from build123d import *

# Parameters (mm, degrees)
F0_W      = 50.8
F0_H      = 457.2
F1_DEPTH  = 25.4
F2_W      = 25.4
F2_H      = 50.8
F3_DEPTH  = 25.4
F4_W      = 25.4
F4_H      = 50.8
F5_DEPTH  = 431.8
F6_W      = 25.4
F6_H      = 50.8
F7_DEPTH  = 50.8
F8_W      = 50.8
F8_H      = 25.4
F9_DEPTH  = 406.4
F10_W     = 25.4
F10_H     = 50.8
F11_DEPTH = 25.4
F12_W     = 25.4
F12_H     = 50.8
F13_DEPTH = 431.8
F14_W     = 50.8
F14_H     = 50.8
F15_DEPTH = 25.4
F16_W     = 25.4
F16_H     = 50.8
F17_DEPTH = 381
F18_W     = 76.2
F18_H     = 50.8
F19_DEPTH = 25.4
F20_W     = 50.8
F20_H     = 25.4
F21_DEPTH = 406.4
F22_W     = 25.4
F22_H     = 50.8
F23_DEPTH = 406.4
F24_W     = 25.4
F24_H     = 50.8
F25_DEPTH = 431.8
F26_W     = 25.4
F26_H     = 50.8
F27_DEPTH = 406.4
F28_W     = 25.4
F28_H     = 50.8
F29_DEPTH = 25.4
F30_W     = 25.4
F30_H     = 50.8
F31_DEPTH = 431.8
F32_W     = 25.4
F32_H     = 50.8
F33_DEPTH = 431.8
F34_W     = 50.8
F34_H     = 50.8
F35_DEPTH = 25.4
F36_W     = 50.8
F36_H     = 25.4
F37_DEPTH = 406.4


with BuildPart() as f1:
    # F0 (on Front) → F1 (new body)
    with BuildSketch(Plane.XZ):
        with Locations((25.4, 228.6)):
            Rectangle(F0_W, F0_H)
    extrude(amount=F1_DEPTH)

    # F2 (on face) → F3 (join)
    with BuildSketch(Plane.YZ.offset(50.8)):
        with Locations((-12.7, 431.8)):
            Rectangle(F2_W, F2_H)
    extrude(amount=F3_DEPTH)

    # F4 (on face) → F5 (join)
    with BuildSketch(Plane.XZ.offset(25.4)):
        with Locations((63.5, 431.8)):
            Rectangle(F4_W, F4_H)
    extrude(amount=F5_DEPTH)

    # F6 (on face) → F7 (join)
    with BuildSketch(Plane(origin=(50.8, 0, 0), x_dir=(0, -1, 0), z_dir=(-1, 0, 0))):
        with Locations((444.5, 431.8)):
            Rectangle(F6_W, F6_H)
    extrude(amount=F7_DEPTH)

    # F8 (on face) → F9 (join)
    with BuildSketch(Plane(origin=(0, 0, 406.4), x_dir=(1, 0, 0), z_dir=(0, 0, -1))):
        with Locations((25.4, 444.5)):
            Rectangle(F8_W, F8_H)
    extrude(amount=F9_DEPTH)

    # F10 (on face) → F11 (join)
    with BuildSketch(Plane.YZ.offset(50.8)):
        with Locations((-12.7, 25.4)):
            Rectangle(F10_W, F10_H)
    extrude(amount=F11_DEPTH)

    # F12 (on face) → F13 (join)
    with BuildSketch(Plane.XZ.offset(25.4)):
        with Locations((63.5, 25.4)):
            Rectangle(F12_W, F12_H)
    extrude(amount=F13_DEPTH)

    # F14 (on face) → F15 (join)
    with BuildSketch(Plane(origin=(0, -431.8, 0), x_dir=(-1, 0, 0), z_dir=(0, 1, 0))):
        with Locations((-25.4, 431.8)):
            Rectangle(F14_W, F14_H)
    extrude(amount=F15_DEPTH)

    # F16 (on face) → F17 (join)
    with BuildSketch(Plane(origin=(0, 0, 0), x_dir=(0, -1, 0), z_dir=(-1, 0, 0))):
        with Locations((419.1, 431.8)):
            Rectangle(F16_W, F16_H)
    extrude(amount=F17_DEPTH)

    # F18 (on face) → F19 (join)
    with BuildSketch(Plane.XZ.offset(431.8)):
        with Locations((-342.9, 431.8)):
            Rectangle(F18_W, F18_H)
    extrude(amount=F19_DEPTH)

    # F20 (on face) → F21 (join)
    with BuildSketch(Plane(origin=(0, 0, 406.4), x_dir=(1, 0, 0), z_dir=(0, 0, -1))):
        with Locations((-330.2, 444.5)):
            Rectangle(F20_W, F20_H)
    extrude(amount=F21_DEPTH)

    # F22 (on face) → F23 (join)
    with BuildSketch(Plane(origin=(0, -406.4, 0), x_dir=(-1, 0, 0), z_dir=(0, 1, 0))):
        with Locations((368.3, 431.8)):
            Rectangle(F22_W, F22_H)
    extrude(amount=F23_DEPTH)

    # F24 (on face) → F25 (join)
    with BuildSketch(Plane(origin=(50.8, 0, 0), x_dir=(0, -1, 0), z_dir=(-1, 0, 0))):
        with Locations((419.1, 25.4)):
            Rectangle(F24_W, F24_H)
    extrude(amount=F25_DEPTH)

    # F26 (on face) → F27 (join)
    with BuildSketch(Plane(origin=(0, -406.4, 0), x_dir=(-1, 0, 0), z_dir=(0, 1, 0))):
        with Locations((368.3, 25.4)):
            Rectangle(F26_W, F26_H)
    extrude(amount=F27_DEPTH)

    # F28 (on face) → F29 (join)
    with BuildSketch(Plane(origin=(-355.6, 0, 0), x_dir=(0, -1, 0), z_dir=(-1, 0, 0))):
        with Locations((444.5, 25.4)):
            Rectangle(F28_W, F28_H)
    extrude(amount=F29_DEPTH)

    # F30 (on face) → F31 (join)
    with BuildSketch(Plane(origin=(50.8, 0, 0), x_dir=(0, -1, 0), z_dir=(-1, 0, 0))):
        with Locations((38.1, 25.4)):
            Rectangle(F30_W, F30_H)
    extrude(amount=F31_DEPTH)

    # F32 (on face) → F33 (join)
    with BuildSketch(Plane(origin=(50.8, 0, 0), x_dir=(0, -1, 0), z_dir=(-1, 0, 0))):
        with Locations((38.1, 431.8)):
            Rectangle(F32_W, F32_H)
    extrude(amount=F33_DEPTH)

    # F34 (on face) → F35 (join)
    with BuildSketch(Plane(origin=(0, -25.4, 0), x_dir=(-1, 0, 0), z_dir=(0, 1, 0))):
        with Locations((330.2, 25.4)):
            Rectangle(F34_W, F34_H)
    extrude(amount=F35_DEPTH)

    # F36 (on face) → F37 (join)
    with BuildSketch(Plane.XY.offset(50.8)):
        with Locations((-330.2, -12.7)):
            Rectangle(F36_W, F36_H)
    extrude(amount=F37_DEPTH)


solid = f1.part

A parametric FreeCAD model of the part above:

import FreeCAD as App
import Part
import Sketcher

V = App.Vector
Q = App.Units.Quantity

doc = App.newDocument("Part")
params = doc.addObject("Spreadsheet::Sheet", "Params")
for row, (alias, value) in enumerate([
    ("sketch1_width", "2 in"),
    ("sketch1_height", "18 in"),
    ("pad1_length", "1 in"),
    ("sketch2_width", "1 in"),
    ("sketch2_height", "2 in"),
    ("pad2_length", "1 in"),
    ("sketch3_width", "1 in"),
    ("sketch3_height", "2 in"),
    ("pad3_length", "17 in"),
    ("sketch4_width", "1 in"),
    ("sketch4_height", "2 in"),
    ("pad4_length", "2 in"),
    ("sketch5_width", "2 in"),
    ("sketch5_height", "1 in"),
    ("pad5_length", "16 in"),
    ("sketch6_width", "1 in"),
    ("sketch6_height", "2 in"),
    ("pad6_length", "1 in"),
    ("sketch7_width", "1 in"),
    ("sketch7_height", "2 in"),
    ("pad7_length", "17 in"),
    ("sketch8_width", "2 in"),
    ("pad8_length", "1 in"),
    ("sketch9_width", "1 in"),
    ("sketch9_height", "2 in"),
    ("pad9_length", "15 in"),
    ("sketch10_width", "3 in"),
    ("sketch10_height", "2 in"),
    ("pad10_length", "1 in"),
    ("sketch11_width", "2 in"),
    ("sketch11_height", "1 in"),
    ("pad11_length", "16 in"),
    ("sketch12_width", "1 in"),
    ("sketch12_height", "2 in"),
    ("pad12_length", "16 in"),
    ("sketch13_width", "1 in"),
    ("sketch13_height", "2 in"),
    ("pad13_length", "17 in"),
    ("sketch14_width", "1 in"),
    ("sketch14_height", "2 in"),
    ("pad14_length", "16 in"),
    ("sketch15_width", "1 in"),
    ("sketch15_height", "2 in"),
    ("pad15_length", "1 in"),
    ("sketch16_width", "1 in"),
    ("sketch16_height", "2 in"),
    ("pad16_length", "17 in"),
    ("sketch17_width", "1 in"),
    ("sketch17_height", "2 in"),
    ("pad17_length", "17 in"),
    ("sketch18_width", "2 in"),
    ("pad18_length", "1 in"),
    ("sketch19_width", "2 in"),
    ("sketch19_height", "1 in"),
    ("pad19_length", "16 in"),
], start=1):
    params.set(f"A{row}", alias)
    params.set(f"B{row}", "=" + value)
    params.setAlias(f"B{row}", alias)

body = doc.addObject("PartDesign::Body", "Body")

sketch1 = body.newObject("Sketcher::SketchObject", "Sketch")
sketch1.AttachmentSupport = (doc.getObject("XZ_Plane"), [""])
sketch1.MapMode = "FlatFace"
sketch1.addGeometry(Part.LineSegment(V(0, 457, 0), V(0, 0, 0)), False)
sketch1.addGeometry(Part.LineSegment(V(0, 0, 0), V(51, 0, 0)), False)
sketch1.addGeometry(Part.LineSegment(V(51, 0, 0), V(51, 457, 0)), False)
sketch1.addGeometry(Part.LineSegment(V(51, 457, 0), V(0, 457, 0)), False)
sketch1.addConstraint(Sketcher.Constraint("Coincident", 0, 2, 1, 1))
sketch1.addConstraint(Sketcher.Constraint("Coincident", 1, 2, 2, 1))
sketch1.addConstraint(Sketcher.Constraint("Coincident", 2, 2, 3, 1))
sketch1.addConstraint(Sketcher.Constraint("Coincident", 3, 2, 0, 1))
sketch1.addConstraint(Sketcher.Constraint("Vertical", 0))
sketch1.addConstraint(Sketcher.Constraint("Horizontal", 1))
sketch1.addConstraint(Sketcher.Constraint("Vertical", 2))
sketch1.addConstraint(Sketcher.Constraint("Horizontal", 3))
sketch1.addConstraint(Sketcher.Constraint("Coincident", 0, 2, -1, 1))
sketch1.addConstraint(Sketcher.Constraint("DistanceX", 1, 1, 1, 2, Q("2 in")))
sketch1.addConstraint(Sketcher.Constraint("DistanceY", 0, 2, 0, 1, Q("18 in")))
sketch1.setExpression("Constraints[9]", "Params.sketch1_width")
sketch1.setExpression("Constraints[10]", "Params.sketch1_height")
pad1 = body.newObject("PartDesign::Pad", "Pad")
pad1.Profile = sketch1
pad1.setExpression("Length", "Params.pad1_length")

sketch2 = body.newObject("Sketcher::SketchObject", "Sketch001")
sketch2.AttachmentSupport = (doc.getObject("YZ_Plane"), [""])
sketch2.MapMode = "FlatFace"
sketch2.AttachmentOffset = App.Placement(V(0, 0, 2 * 25.4), App.Rotation())
sketch2.addGeometry(Part.LineSegment(V(-25, 457, 0), V(-25, 406, 0)), False)
sketch2.addGeometry(Part.LineSegment(V(-25, 406, 0), V(0, 406, 0)), False)
sketch2.addGeometry(Part.LineSegment(V(0, 406, 0), V(0, 457, 0)), False)
sketch2.addGeometry(Part.LineSegment(V(0, 457, 0), V(-25, 457, 0)), False)
sketch2.addConstraint(Sketcher.Constraint("Coincident", 0, 2, 1, 1))
sketch2.addConstraint(Sketcher.Constraint("Coincident", 1, 2, 2, 1))
sketch2.addConstraint(Sketcher.Constraint("Coincident", 2, 2, 3, 1))
sketch2.addConstraint(Sketcher.Constraint("Coincident", 3, 2, 0, 1))
sketch2.addConstraint(Sketcher.Constraint("Vertical", 0))
sketch2.addConstraint(Sketcher.Constraint("Horizontal", 1))
sketch2.addConstraint(Sketcher.Constraint("Vertical", 2))
sketch2.addConstraint(Sketcher.Constraint("Horizontal", 3))
sketch2.addConstraint(Sketcher.Constraint("PointOnObject", 1, 2, -2))
sketch2.addConstraint(Sketcher.Constraint("DistanceX", 1, 1, 1, 2, Q("1 in")))
sketch2.addConstraint(Sketcher.Constraint("DistanceY", 0, 2, 0, 1, Q("2 in")))
sketch2.addConstraint(Sketcher.Constraint("DistanceY", -1, 1, 0, 2, Q("16 in")))
sketch2.setExpression("Constraints[9]", "Params.sketch2_width")
sketch2.setExpression("Constraints[10]", "Params.sketch2_height")
pad2 = body.newObject("PartDesign::Pad", "Pad001")
pad2.Profile = sketch2
pad2.setExpression("Length", "Params.pad2_length")

sketch3 = body.newObject("Sketcher::SketchObject", "Sketch002")
sketch3.AttachmentSupport = (doc.getObject("XZ_Plane"), [""])
sketch3.MapMode = "FlatFace"
sketch3.AttachmentOffset = App.Placement(V(0, 0, 1 * 25.4), App.Rotation())
sketch3.addGeometry(Part.LineSegment(V(51, 457, 0), V(51, 406, 0)), False)
sketch3.addGeometry(Part.LineSegment(V(51, 406, 0), V(76, 406, 0)), False)
sketch3.addGeometry(Part.LineSegment(V(76, 406, 0), V(76, 457, 0)), False)
sketch3.addGeometry(Part.LineSegment(V(76, 457, 0), V(51, 457, 0)), False)
sketch3.addConstraint(Sketcher.Constraint("Coincident", 0, 2, 1, 1))
sketch3.addConstraint(Sketcher.Constraint("Coincident", 1, 2, 2, 1))
sketch3.addConstraint(Sketcher.Constraint("Coincident", 2, 2, 3, 1))
sketch3.addConstraint(Sketcher.Constraint("Coincident", 3, 2, 0, 1))
sketch3.addConstraint(Sketcher.Constraint("Vertical", 0))
sketch3.addConstraint(Sketcher.Constraint("Horizontal", 1))
sketch3.addConstraint(Sketcher.Constraint("Vertical", 2))
sketch3.addConstraint(Sketcher.Constraint("Horizontal", 3))
sketch3.addConstraint(Sketcher.Constraint("DistanceX", 1, 1, 1, 2, Q("1 in")))
sketch3.addConstraint(Sketcher.Constraint("DistanceY", 0, 2, 0, 1, Q("2 in")))
sketch3.addConstraint(Sketcher.Constraint("DistanceX", -1, 1, 0, 2, Q("2 in")))
sketch3.addConstraint(Sketcher.Constraint("DistanceY", -1, 1, 0, 2, Q("16 in")))
sketch3.setExpression("Constraints[8]", "Params.sketch3_width")
sketch3.setExpression("Constraints[9]", "Params.sketch3_height")
pad3 = body.newObject("PartDesign::Pad", "Pad002")
pad3.Profile = sketch3
pad3.setExpression("Length", "Params.pad3_length")

sketch4 = body.newObject("Sketcher::SketchObject", "Sketch003")
sketch4.AttachmentSupport = (doc.getObject("YZ_Plane"), [""])
sketch4.MapMode = "FlatFace"
sketch4.AttachmentOffset = App.Placement(V(0, 0, 2 * 25.4), App.Rotation())
sketch4.addGeometry(Part.LineSegment(V(-432, 457, 0), V(-432, 406, 0)), False)
sketch4.addGeometry(Part.LineSegment(V(-432, 406, 0), V(-457, 406, 0)), False)
sketch4.addGeometry(Part.LineSegment(V(-457, 406, 0), V(-457, 457, 0)), False)
sketch4.addGeometry(Part.LineSegment(V(-457, 457, 0), V(-432, 457, 0)), False)
sketch4.addConstraint(Sketcher.Constraint("Coincident", 0, 2, 1, 1))
sketch4.addConstraint(Sketcher.Constraint("Coincident", 1, 2, 2, 1))
sketch4.addConstraint(Sketcher.Constraint("Coincident", 2, 2, 3, 1))
sketch4.addConstraint(Sketcher.Constraint("Coincident", 3, 2, 0, 1))
sketch4.addConstraint(Sketcher.Constraint("Vertical", 0))
sketch4.addConstraint(Sketcher.Constraint("Horizontal", 1))
sketch4.addConstraint(Sketcher.Constraint("Vertical", 2))
sketch4.addConstraint(Sketcher.Constraint("Horizontal", 3))
sketch4.addConstraint(Sketcher.Constraint("DistanceX", 1, 2, 1, 1, Q("1 in")))
sketch4.addConstraint(Sketcher.Constraint("DistanceY", 0, 2, 0, 1, Q("2 in")))
sketch4.addConstraint(Sketcher.Constraint("DistanceX", 0, 2, -1, 1, Q("17 in")))
sketch4.addConstraint(Sketcher.Constraint("DistanceY", -1, 1, 0, 2, Q("16 in")))
sketch4.setExpression("Constraints[8]", "Params.sketch4_width")
sketch4.setExpression("Constraints[9]", "Params.sketch4_height")
pad4 = body.newObject("PartDesign::Pad", "Pad003")
pad4.Profile = sketch4
pad4.setExpression("Length", "Params.pad4_length")
pad4.Reversed = True

sketch5 = body.newObject("Sketcher::SketchObject", "Sketch004")
sketch5.AttachmentSupport = (doc.getObject("XY_Plane"), [""])
sketch5.MapMode = "FlatFace"
sketch5.AttachmentOffset = App.Placement(V(0, 0, 16 * 25.4), App.Rotation())
sketch5.addGeometry(Part.LineSegment(V(0, -457, 0), V(0, -432, 0)), False)
sketch5.addGeometry(Part.LineSegment(V(0, -432, 0), V(51, -432, 0)), False)
sketch5.addGeometry(Part.LineSegment(V(51, -432, 0), V(51, -457, 0)), False)
sketch5.addGeometry(Part.LineSegment(V(51, -457, 0), V(0, -457, 0)), False)
sketch5.addConstraint(Sketcher.Constraint("Coincident", 0, 2, 1, 1))
sketch5.addConstraint(Sketcher.Constraint("Coincident", 1, 2, 2, 1))
sketch5.addConstraint(Sketcher.Constraint("Coincident", 2, 2, 3, 1))
sketch5.addConstraint(Sketcher.Constraint("Coincident", 3, 2, 0, 1))
sketch5.addConstraint(Sketcher.Constraint("Vertical", 0))
sketch5.addConstraint(Sketcher.Constraint("Horizontal", 1))
sketch5.addConstraint(Sketcher.Constraint("Vertical", 2))
sketch5.addConstraint(Sketcher.Constraint("Horizontal", 3))
sketch5.addConstraint(Sketcher.Constraint("PointOnObject", 0, 2, -2))
sketch5.addConstraint(Sketcher.Constraint("DistanceX", 1, 1, 1, 2, Q("2 in")))
sketch5.addConstraint(Sketcher.Constraint("DistanceY", 0, 1, 0, 2, Q("1 in")))
sketch5.addConstraint(Sketcher.Constraint("DistanceY", 0, 2, -1, 1, Q("17 in")))
sketch5.setExpression("Constraints[9]", "Params.sketch5_width")
sketch5.setExpression("Constraints[10]", "Params.sketch5_height")
pad5 = body.newObject("PartDesign::Pad", "Pad004")
pad5.Profile = sketch5
pad5.setExpression("Length", "Params.pad5_length")
pad5.Reversed = True

sketch6 = body.newObject("Sketcher::SketchObject", "Sketch005")
sketch6.AttachmentSupport = (doc.getObject("YZ_Plane"), [""])
sketch6.MapMode = "FlatFace"
sketch6.AttachmentOffset = App.Placement(V(0, 0, 2 * 25.4), App.Rotation())
sketch6.addGeometry(Part.LineSegment(V(-25, 51, 0), V(-25, 0, 0)), False)
sketch6.addGeometry(Part.LineSegment(V(-25, 0, 0), V(0, 0, 0)), False)
sketch6.addGeometry(Part.LineSegment(V(0, 0, 0), V(0, 51, 0)), False)
sketch6.addGeometry(Part.LineSegment(V(0, 51, 0), V(-25, 51, 0)), False)
sketch6.addConstraint(Sketcher.Constraint("Coincident", 0, 2, 1, 1))
sketch6.addConstraint(Sketcher.Constraint("Coincident", 1, 2, 2, 1))
sketch6.addConstraint(Sketcher.Constraint("Coincident", 2, 2, 3, 1))
sketch6.addConstraint(Sketcher.Constraint("Coincident", 3, 2, 0, 1))
sketch6.addConstraint(Sketcher.Constraint("Vertical", 0))
sketch6.addConstraint(Sketcher.Constraint("Horizontal", 1))
sketch6.addConstraint(Sketcher.Constraint("Vertical", 2))
sketch6.addConstraint(Sketcher.Constraint("Horizontal", 3))
sketch6.addConstraint(Sketcher.Constraint("Coincident", 1, 2, -1, 1))
sketch6.addConstraint(Sketcher.Constraint("DistanceX", 1, 1, 1, 2, Q("1 in")))
sketch6.addConstraint(Sketcher.Constraint("DistanceY", 0, 2, 0, 1, Q("2 in")))
sketch6.setExpression("Constraints[9]", "Params.sketch6_width")
sketch6.setExpression("Constraints[10]", "Params.sketch6_height")
pad6 = body.newObject("PartDesign::Pad", "Pad005")
pad6.Profile = sketch6
pad6.setExpression("Length", "Params.pad6_length")

sketch7 = body.newObject("Sketcher::SketchObject", "Sketch006")
sketch7.AttachmentSupport = (doc.getObject("XZ_Plane"), [""])
sketch7.MapMode = "FlatFace"
sketch7.AttachmentOffset = App.Placement(V(0, 0, 1 * 25.4), App.Rotation())
sketch7.addGeometry(Part.LineSegment(V(51, 51, 0), V(51, 0, 0)), False)
sketch7.addGeometry(Part.LineSegment(V(51, 0, 0), V(76, 0, 0)), False)
sketch7.addGeometry(Part.LineSegment(V(76, 0, 0), V(76, 51, 0)), False)
sketch7.addGeometry(Part.LineSegment(V(76, 51, 0), V(51, 51, 0)), False)
sketch7.addConstraint(Sketcher.Constraint("Coincident", 0, 2, 1, 1))
sketch7.addConstraint(Sketcher.Constraint("Coincident", 1, 2, 2, 1))
sketch7.addConstraint(Sketcher.Constraint("Coincident", 2, 2, 3, 1))
sketch7.addConstraint(Sketcher.Constraint("Coincident", 3, 2, 0, 1))
sketch7.addConstraint(Sketcher.Constraint("Vertical", 0))
sketch7.addConstraint(Sketcher.Constraint("Horizontal", 1))
sketch7.addConstraint(Sketcher.Constraint("Vertical", 2))
sketch7.addConstraint(Sketcher.Constraint("Horizontal", 3))
sketch7.addConstraint(Sketcher.Constraint("PointOnObject", 0, 2, -1))
sketch7.addConstraint(Sketcher.Constraint("DistanceX", 1, 1, 1, 2, Q("1 in")))
sketch7.addConstraint(Sketcher.Constraint("DistanceY", 0, 2, 0, 1, Q("2 in")))
sketch7.addConstraint(Sketcher.Constraint("DistanceX", -1, 1, 0, 2, Q("2 in")))
sketch7.setExpression("Constraints[9]", "Params.sketch7_width")
sketch7.setExpression("Constraints[10]", "Params.sketch7_height")
pad7 = body.newObject("PartDesign::Pad", "Pad006")
pad7.Profile = sketch7
pad7.setExpression("Length", "Params.pad7_length")

sketch8 = body.newObject("Sketcher::SketchObject", "Sketch007")
sketch8.AttachmentSupport = (doc.getObject("XZ_Plane"), [""])
sketch8.MapMode = "FlatFace"
sketch8.AttachmentOffset = App.Placement(V(0, 0, 17 * 25.4), App.Rotation())
sketch8.addGeometry(Part.LineSegment(V(51, 457, 0), V(51, 406, 0)), False)
sketch8.addGeometry(Part.LineSegment(V(51, 406, 0), V(0, 406, 0)), False)
sketch8.addGeometry(Part.LineSegment(V(0, 406, 0), V(0, 457, 0)), False)
sketch8.addGeometry(Part.LineSegment(V(0, 457, 0), V(51, 457, 0)), False)
sketch8.addConstraint(Sketcher.Constraint("Coincident", 0, 2, 1, 1))
sketch8.addConstraint(Sketcher.Constraint("Coincident", 1, 2, 2, 1))
sketch8.addConstraint(Sketcher.Constraint("Coincident", 2, 2, 3, 1))
sketch8.addConstraint(Sketcher.Constraint("Coincident", 3, 2, 0, 1))
sketch8.addConstraint(Sketcher.Constraint("Vertical", 0))
sketch8.addConstraint(Sketcher.Constraint("Horizontal", 1))
sketch8.addConstraint(Sketcher.Constraint("Vertical", 2))
sketch8.addConstraint(Sketcher.Constraint("Horizontal", 3))
sketch8.addConstraint(Sketcher.Constraint("PointOnObject", 1, 2, -2))
sketch8.addConstraint(Sketcher.Constraint("Equal", 3, 0))
sketch8.addConstraint(Sketcher.Constraint("DistanceX", 1, 2, 1, 1, Q("2 in")))
sketch8.addConstraint(Sketcher.Constraint("DistanceY", -1, 1, 0, 2, Q("16 in")))
sketch8.setExpression("Constraints[10]", "Params.sketch8_width")
pad8 = body.newObject("PartDesign::Pad", "Pad007")
pad8.Profile = sketch8
pad8.setExpression("Length", "Params.pad8_length")
pad8.Reversed = True

sketch9 = body.newObject("Sketcher::SketchObject", "Sketch008")
sketch9.AttachmentSupport = (doc.getObject("YZ_Plane"), [""])
sketch9.MapMode = "FlatFace"
sketch9.addGeometry(Part.LineSegment(V(-406, 457, 0), V(-406, 406, 0)), False)
sketch9.addGeometry(Part.LineSegment(V(-406, 406, 0), V(-432, 406, 0)), False)
sketch9.addGeometry(Part.LineSegment(V(-432, 406, 0), V(-432, 457, 0)), False)
sketch9.addGeometry(Part.LineSegment(V(-432, 457, 0), V(-406, 457, 0)), False)
sketch9.addConstraint(Sketcher.Constraint("Coincident", 0, 2, 1, 1))
sketch9.addConstraint(Sketcher.Constraint("Coincident", 1, 2, 2, 1))
sketch9.addConstraint(Sketcher.Constraint("Coincident", 2, 2, 3, 1))
sketch9.addConstraint(Sketcher.Constraint("Coincident", 3, 2, 0, 1))
sketch9.addConstraint(Sketcher.Constraint("Vertical", 0))
sketch9.addConstraint(Sketcher.Constraint("Horizontal", 1))
sketch9.addConstraint(Sketcher.Constraint("Vertical", 2))
sketch9.addConstraint(Sketcher.Constraint("Horizontal", 3))
sketch9.addConstraint(Sketcher.Constraint("DistanceX", 1, 2, 1, 1, Q("1 in")))
sketch9.addConstraint(Sketcher.Constraint("DistanceY", 0, 2, 0, 1, Q("2 in")))
sketch9.addConstraint(Sketcher.Constraint("DistanceX", 0, 2, -1, 1, Q("16 in")))
sketch9.addConstraint(Sketcher.Constraint("DistanceY", -1, 1, 0, 2, Q("16 in")))
sketch9.setExpression("Constraints[8]", "Params.sketch9_width")
sketch9.setExpression("Constraints[9]", "Params.sketch9_height")
pad9 = body.newObject("PartDesign::Pad", "Pad008")
pad9.Profile = sketch9
pad9.setExpression("Length", "Params.pad9_length")
pad9.Reversed = True

sketch10 = body.newObject("Sketcher::SketchObject", "Sketch009")
sketch10.AttachmentSupport = (doc.getObject("XZ_Plane"), [""])
sketch10.MapMode = "FlatFace"
sketch10.AttachmentOffset = App.Placement(V(0, 0, 17 * 25.4), App.Rotation())
sketch10.addGeometry(Part.LineSegment(V(-381, 457, 0), V(-381, 406, 0)), False)
sketch10.addGeometry(Part.LineSegment(V(-381, 406, 0), V(-305, 406, 0)), False)
sketch10.addGeometry(Part.LineSegment(V(-305, 406, 0), V(-305, 457, 0)), False)
sketch10.addGeometry(Part.LineSegment(V(-305, 457, 0), V(-381, 457, 0)), False)
sketch10.addConstraint(Sketcher.Constraint("Coincident", 0, 2, 1, 1))
sketch10.addConstraint(Sketcher.Constraint("Coincident", 1, 2, 2, 1))
sketch10.addConstraint(Sketcher.Constraint("Coincident", 2, 2, 3, 1))
sketch10.addConstraint(Sketcher.Constraint("Coincident", 3, 2, 0, 1))
sketch10.addConstraint(Sketcher.Constraint("Vertical", 0))
sketch10.addConstraint(Sketcher.Constraint("Horizontal", 1))
sketch10.addConstraint(Sketcher.Constraint("Vertical", 2))
sketch10.addConstraint(Sketcher.Constraint("Horizontal", 3))
sketch10.addConstraint(Sketcher.Constraint("DistanceX", 1, 1, 1, 2, Q("3 in")))
sketch10.addConstraint(Sketcher.Constraint("DistanceY", 0, 2, 0, 1, Q("2 in")))
sketch10.addConstraint(Sketcher.Constraint("DistanceX", 0, 2, -1, 1, Q("15 in")))
sketch10.addConstraint(Sketcher.Constraint("DistanceY", -1, 1, 0, 2, Q("16 in")))
sketch10.setExpression("Constraints[8]", "Params.sketch10_width")
sketch10.setExpression("Constraints[9]", "Params.sketch10_height")
pad10 = body.newObject("PartDesign::Pad", "Pad009")
pad10.Profile = sketch10
pad10.setExpression("Length", "Params.pad10_length")

sketch11 = body.newObject("Sketcher::SketchObject", "Sketch010")
sketch11.AttachmentSupport = (doc.getObject("XY_Plane"), [""])
sketch11.MapMode = "FlatFace"
sketch11.AttachmentOffset = App.Placement(V(0, 0, 16 * 25.4), App.Rotation())
sketch11.addGeometry(Part.LineSegment(V(-356, -457, 0), V(-356, -432, 0)), False)
sketch11.addGeometry(Part.LineSegment(V(-356, -432, 0), V(-305, -432, 0)), False)
sketch11.addGeometry(Part.LineSegment(V(-305, -432, 0), V(-305, -457, 0)), False)
sketch11.addGeometry(Part.LineSegment(V(-305, -457, 0), V(-356, -457, 0)), False)
sketch11.addConstraint(Sketcher.Constraint("Coincident", 0, 2, 1, 1))
sketch11.addConstraint(Sketcher.Constraint("Coincident", 1, 2, 2, 1))
sketch11.addConstraint(Sketcher.Constraint("Coincident", 2, 2, 3, 1))
sketch11.addConstraint(Sketcher.Constraint("Coincident", 3, 2, 0, 1))
sketch11.addConstraint(Sketcher.Constraint("Vertical", 0))
sketch11.addConstraint(Sketcher.Constraint("Horizontal", 1))
sketch11.addConstraint(Sketcher.Constraint("Vertical", 2))
sketch11.addConstraint(Sketcher.Constraint("Horizontal", 3))
sketch11.addConstraint(Sketcher.Constraint("DistanceX", 1, 1, 1, 2, Q("2 in")))
sketch11.addConstraint(Sketcher.Constraint("DistanceY", 0, 1, 0, 2, Q("1 in")))
sketch11.addConstraint(Sketcher.Constraint("DistanceX", 0, 2, -1, 1, Q("14 in")))
sketch11.addConstraint(Sketcher.Constraint("DistanceY", 0, 2, -1, 1, Q("17 in")))
sketch11.setExpression("Constraints[8]", "Params.sketch11_width")
sketch11.setExpression("Constraints[9]", "Params.sketch11_height")
pad11 = body.newObject("PartDesign::Pad", "Pad010")
pad11.Profile = sketch11
pad11.setExpression("Length", "Params.pad11_length")
pad11.Reversed = True

sketch12 = body.newObject("Sketcher::SketchObject", "Sketch011")
sketch12.AttachmentSupport = (doc.getObject("XZ_Plane"), [""])
sketch12.MapMode = "FlatFace"
sketch12.AttachmentOffset = App.Placement(V(0, 0, 16 * 25.4), App.Rotation())
sketch12.addGeometry(Part.LineSegment(V(-356, 457, 0), V(-356, 406, 0)), False)
sketch12.addGeometry(Part.LineSegment(V(-356, 406, 0), V(-381, 406, 0)), False)
sketch12.addGeometry(Part.LineSegment(V(-381, 406, 0), V(-381, 457, 0)), False)
sketch12.addGeometry(Part.LineSegment(V(-381, 457, 0), V(-356, 457, 0)), False)
sketch12.addConstraint(Sketcher.Constraint("Coincident", 0, 2, 1, 1))
sketch12.addConstraint(Sketcher.Constraint("Coincident", 1, 2, 2, 1))
sketch12.addConstraint(Sketcher.Constraint("Coincident", 2, 2, 3, 1))
sketch12.addConstraint(Sketcher.Constraint("Coincident", 3, 2, 0, 1))
sketch12.addConstraint(Sketcher.Constraint("Vertical", 0))
sketch12.addConstraint(Sketcher.Constraint("Horizontal", 1))
sketch12.addConstraint(Sketcher.Constraint("Vertical", 2))
sketch12.addConstraint(Sketcher.Constraint("Horizontal", 3))
sketch12.addConstraint(Sketcher.Constraint("DistanceX", 1, 2, 1, 1, Q("1 in")))
sketch12.addConstraint(Sketcher.Constraint("DistanceY", 0, 2, 0, 1, Q("2 in")))
sketch12.addConstraint(Sketcher.Constraint("DistanceX", 0, 2, -1, 1, Q("14 in")))
sketch12.addConstraint(Sketcher.Constraint("DistanceY", -1, 1, 0, 2, Q("16 in")))
sketch12.setExpression("Constraints[8]", "Params.sketch12_width")
sketch12.setExpression("Constraints[9]", "Params.sketch12_height")
pad12 = body.newObject("PartDesign::Pad", "Pad011")
pad12.Profile = sketch12
pad12.setExpression("Length", "Params.pad12_length")
pad12.Reversed = True

sketch13 = body.newObject("Sketcher::SketchObject", "Sketch012")
sketch13.AttachmentSupport = (doc.getObject("YZ_Plane"), [""])
sketch13.MapMode = "FlatFace"
sketch13.AttachmentOffset = App.Placement(V(0, 0, 2 * 25.4), App.Rotation())
sketch13.addGeometry(Part.LineSegment(V(-406, 51, 0), V(-406, 0, 0)), False)
sketch13.addGeometry(Part.LineSegment(V(-406, 0, 0), V(-432, 0, 0)), False)
sketch13.addGeometry(Part.LineSegment(V(-432, 0, 0), V(-432, 51, 0)), False)
sketch13.addGeometry(Part.LineSegment(V(-432, 51, 0), V(-406, 51, 0)), False)
sketch13.addConstraint(Sketcher.Constraint("Coincident", 0, 2, 1, 1))
sketch13.addConstraint(Sketcher.Constraint("Coincident", 1, 2, 2, 1))
sketch13.addConstraint(Sketcher.Constraint("Coincident", 2, 2, 3, 1))
sketch13.addConstraint(Sketcher.Constraint("Coincident", 3, 2, 0, 1))
sketch13.addConstraint(Sketcher.Constraint("Vertical", 0))
sketch13.addConstraint(Sketcher.Constraint("Horizontal", 1))
sketch13.addConstraint(Sketcher.Constraint("Vertical", 2))
sketch13.addConstraint(Sketcher.Constraint("Horizontal", 3))
sketch13.addConstraint(Sketcher.Constraint("PointOnObject", 0, 2, -1))
sketch13.addConstraint(Sketcher.Constraint("DistanceX", 1, 2, 1, 1, Q("1 in")))
sketch13.addConstraint(Sketcher.Constraint("DistanceY", 0, 2, 0, 1, Q("2 in")))
sketch13.addConstraint(Sketcher.Constraint("DistanceX", 0, 2, -1, 1, Q("16 in")))
sketch13.setExpression("Constraints[9]", "Params.sketch13_width")
sketch13.setExpression("Constraints[10]", "Params.sketch13_height")
pad13 = body.newObject("PartDesign::Pad", "Pad012")
pad13.Profile = sketch13
pad13.setExpression("Length", "Params.pad13_length")
pad13.Reversed = True

sketch14 = body.newObject("Sketcher::SketchObject", "Sketch013")
sketch14.AttachmentSupport = (doc.getObject("XZ_Plane"), [""])
sketch14.MapMode = "FlatFace"
sketch14.AttachmentOffset = App.Placement(V(0, 0, 16 * 25.4), App.Rotation())
sketch14.addGeometry(Part.LineSegment(V(-356, 51, 0), V(-356, 0, 0)), False)
sketch14.addGeometry(Part.LineSegment(V(-356, 0, 0), V(-381, 0, 0)), False)
sketch14.addGeometry(Part.LineSegment(V(-381, 0, 0), V(-381, 51, 0)), False)
sketch14.addGeometry(Part.LineSegment(V(-381, 51, 0), V(-356, 51, 0)), False)
sketch14.addConstraint(Sketcher.Constraint("Coincident", 0, 2, 1, 1))
sketch14.addConstraint(Sketcher.Constraint("Coincident", 1, 2, 2, 1))
sketch14.addConstraint(Sketcher.Constraint("Coincident", 2, 2, 3, 1))
sketch14.addConstraint(Sketcher.Constraint("Coincident", 3, 2, 0, 1))
sketch14.addConstraint(Sketcher.Constraint("Vertical", 0))
sketch14.addConstraint(Sketcher.Constraint("Horizontal", 1))
sketch14.addConstraint(Sketcher.Constraint("Vertical", 2))
sketch14.addConstraint(Sketcher.Constraint("Horizontal", 3))
sketch14.addConstraint(Sketcher.Constraint("PointOnObject", 0, 2, -1))
sketch14.addConstraint(Sketcher.Constraint("DistanceX", 1, 2, 1, 1, Q("1 in")))
sketch14.addConstraint(Sketcher.Constraint("DistanceY", 0, 2, 0, 1, Q("2 in")))
sketch14.addConstraint(Sketcher.Constraint("DistanceX", 0, 2, -1, 1, Q("14 in")))
sketch14.setExpression("Constraints[9]", "Params.sketch14_width")
sketch14.setExpression("Constraints[10]", "Params.sketch14_height")
pad14 = body.newObject("PartDesign::Pad", "Pad013")
pad14.Profile = sketch14
pad14.setExpression("Length", "Params.pad14_length")
pad14.Reversed = True

sketch15 = body.newObject("Sketcher::SketchObject", "Sketch014")
sketch15.AttachmentSupport = (doc.getObject("YZ_Plane"), [""])
sketch15.MapMode = "FlatFace"
sketch15.AttachmentOffset = App.Placement(V(0, 0, -14 * 25.4), App.Rotation())
sketch15.addGeometry(Part.LineSegment(V(-432, 51, 0), V(-432, 0, 0)), False)
sketch15.addGeometry(Part.LineSegment(V(-432, 0, 0), V(-457, 0, 0)), False)
sketch15.addGeometry(Part.LineSegment(V(-457, 0, 0), V(-457, 51, 0)), False)
sketch15.addGeometry(Part.LineSegment(V(-457, 51, 0), V(-432, 51, 0)), False)
sketch15.addConstraint(Sketcher.Constraint("Coincident", 0, 2, 1, 1))
sketch15.addConstraint(Sketcher.Constraint("Coincident", 1, 2, 2, 1))
sketch15.addConstraint(Sketcher.Constraint("Coincident", 2, 2, 3, 1))
sketch15.addConstraint(Sketcher.Constraint("Coincident", 3, 2, 0, 1))
sketch15.addConstraint(Sketcher.Constraint("Vertical", 0))
sketch15.addConstraint(Sketcher.Constraint("Horizontal", 1))
sketch15.addConstraint(Sketcher.Constraint("Vertical", 2))
sketch15.addConstraint(Sketcher.Constraint("Horizontal", 3))
sketch15.addConstraint(Sketcher.Constraint("PointOnObject", 0, 2, -1))
sketch15.addConstraint(Sketcher.Constraint("DistanceX", 1, 2, 1, 1, Q("1 in")))
sketch15.addConstraint(Sketcher.Constraint("DistanceY", 0, 2, 0, 1, Q("2 in")))
sketch15.addConstraint(Sketcher.Constraint("DistanceX", 0, 2, -1, 1, Q("17 in")))
sketch15.setExpression("Constraints[9]", "Params.sketch15_width")
sketch15.setExpression("Constraints[10]", "Params.sketch15_height")
pad15 = body.newObject("PartDesign::Pad", "Pad014")
pad15.Profile = sketch15
pad15.setExpression("Length", "Params.pad15_length")
pad15.Reversed = True

sketch16 = body.newObject("Sketcher::SketchObject", "Sketch015")
sketch16.AttachmentSupport = (doc.getObject("YZ_Plane"), [""])
sketch16.MapMode = "FlatFace"
sketch16.AttachmentOffset = App.Placement(V(0, 0, 2 * 25.4), App.Rotation())
sketch16.addGeometry(Part.LineSegment(V(-25, 51, 0), V(-25, 0, 0)), False)
sketch16.addGeometry(Part.LineSegment(V(-25, 0, 0), V(-51, 0, 0)), False)
sketch16.addGeometry(Part.LineSegment(V(-51, 0, 0), V(-51, 51, 0)), False)
sketch16.addGeometry(Part.LineSegment(V(-51, 51, 0), V(-25, 51, 0)), False)
sketch16.addConstraint(Sketcher.Constraint("Coincident", 0, 2, 1, 1))
sketch16.addConstraint(Sketcher.Constraint("Coincident", 1, 2, 2, 1))
sketch16.addConstraint(Sketcher.Constraint("Coincident", 2, 2, 3, 1))
sketch16.addConstraint(Sketcher.Constraint("Coincident", 3, 2, 0, 1))
sketch16.addConstraint(Sketcher.Constraint("Vertical", 0))
sketch16.addConstraint(Sketcher.Constraint("Horizontal", 1))
sketch16.addConstraint(Sketcher.Constraint("Vertical", 2))
sketch16.addConstraint(Sketcher.Constraint("Horizontal", 3))
sketch16.addConstraint(Sketcher.Constraint("PointOnObject", 0, 2, -1))
sketch16.addConstraint(Sketcher.Constraint("DistanceX", 1, 2, 1, 1, Q("1 in")))
sketch16.addConstraint(Sketcher.Constraint("DistanceY", 0, 2, 0, 1, Q("2 in")))
sketch16.addConstraint(Sketcher.Constraint("DistanceX", 0, 2, -1, 1, Q("1 in")))
sketch16.setExpression("Constraints[9]", "Params.sketch16_width")
sketch16.setExpression("Constraints[10]", "Params.sketch16_height")
pad16 = body.newObject("PartDesign::Pad", "Pad015")
pad16.Profile = sketch16
pad16.setExpression("Length", "Params.pad16_length")
pad16.Reversed = True

sketch17 = body.newObject("Sketcher::SketchObject", "Sketch016")
sketch17.AttachmentSupport = (doc.getObject("YZ_Plane"), [""])
sketch17.MapMode = "FlatFace"
sketch17.AttachmentOffset = App.Placement(V(0, 0, 2 * 25.4), App.Rotation())
sketch17.addGeometry(Part.LineSegment(V(-25, 457, 0), V(-25, 406, 0)), False)
sketch17.addGeometry(Part.LineSegment(V(-25, 406, 0), V(-51, 406, 0)), False)
sketch17.addGeometry(Part.LineSegment(V(-51, 406, 0), V(-51, 457, 0)), False)
sketch17.addGeometry(Part.LineSegment(V(-51, 457, 0), V(-25, 457, 0)), False)
sketch17.addConstraint(Sketcher.Constraint("Coincident", 0, 2, 1, 1))
sketch17.addConstraint(Sketcher.Constraint("Coincident", 1, 2, 2, 1))
sketch17.addConstraint(Sketcher.Constraint("Coincident", 2, 2, 3, 1))
sketch17.addConstraint(Sketcher.Constraint("Coincident", 3, 2, 0, 1))
sketch17.addConstraint(Sketcher.Constraint("Vertical", 0))
sketch17.addConstraint(Sketcher.Constraint("Horizontal", 1))
sketch17.addConstraint(Sketcher.Constraint("Vertical", 2))
sketch17.addConstraint(Sketcher.Constraint("Horizontal", 3))
sketch17.addConstraint(Sketcher.Constraint("DistanceX", 1, 2, 1, 1, Q("1 in")))
sketch17.addConstraint(Sketcher.Constraint("DistanceY", 0, 2, 0, 1, Q("2 in")))
sketch17.addConstraint(Sketcher.Constraint("DistanceX", 0, 2, -1, 1, Q("1 in")))
sketch17.addConstraint(Sketcher.Constraint("DistanceY", -1, 1, 0, 2, Q("16 in")))
sketch17.setExpression("Constraints[8]", "Params.sketch17_width")
sketch17.setExpression("Constraints[9]", "Params.sketch17_height")
pad17 = body.newObject("PartDesign::Pad", "Pad016")
pad17.Profile = sketch17
pad17.setExpression("Length", "Params.pad17_length")
pad17.Reversed = True

sketch18 = body.newObject("Sketcher::SketchObject", "Sketch017")
sketch18.AttachmentSupport = (doc.getObject("XZ_Plane"), [""])
sketch18.MapMode = "FlatFace"
sketch18.AttachmentOffset = App.Placement(V(0, 0, 1 * 25.4), App.Rotation())
sketch18.addGeometry(Part.LineSegment(V(-305, 51, 0), V(-305, 0, 0)), False)
sketch18.addGeometry(Part.LineSegment(V(-305, 0, 0), V(-356, 0, 0)), False)
sketch18.addGeometry(Part.LineSegment(V(-356, 0, 0), V(-356, 51, 0)), False)
sketch18.addGeometry(Part.LineSegment(V(-356, 51, 0), V(-305, 51, 0)), False)
sketch18.addConstraint(Sketcher.Constraint("Coincident", 0, 2, 1, 1))
sketch18.addConstraint(Sketcher.Constraint("Coincident", 1, 2, 2, 1))
sketch18.addConstraint(Sketcher.Constraint("Coincident", 2, 2, 3, 1))
sketch18.addConstraint(Sketcher.Constraint("Coincident", 3, 2, 0, 1))
sketch18.addConstraint(Sketcher.Constraint("Vertical", 0))
sketch18.addConstraint(Sketcher.Constraint("Horizontal", 1))
sketch18.addConstraint(Sketcher.Constraint("Vertical", 2))
sketch18.addConstraint(Sketcher.Constraint("Horizontal", 3))
sketch18.addConstraint(Sketcher.Constraint("PointOnObject", 0, 2, -1))
sketch18.addConstraint(Sketcher.Constraint("Equal", 3, 0))
sketch18.addConstraint(Sketcher.Constraint("DistanceX", 1, 2, 1, 1, Q("2 in")))
sketch18.addConstraint(Sketcher.Constraint("DistanceX", 0, 2, -1, 1, Q("12 in")))
sketch18.setExpression("Constraints[10]", "Params.sketch18_width")
pad18 = body.newObject("PartDesign::Pad", "Pad017")
pad18.Profile = sketch18
pad18.setExpression("Length", "Params.pad18_length")
pad18.Reversed = True

sketch19 = body.newObject("Sketcher::SketchObject", "Sketch018")
sketch19.AttachmentSupport = (doc.getObject("XY_Plane"), [""])
sketch19.MapMode = "FlatFace"
sketch19.AttachmentOffset = App.Placement(V(0, 0, 2 * 25.4), App.Rotation())
sketch19.addGeometry(Part.LineSegment(V(-356, 0, 0), V(-356, -25, 0)), False)
sketch19.addGeometry(Part.LineSegment(V(-356, -25, 0), V(-305, -25, 0)), False)
sketch19.addGeometry(Part.LineSegment(V(-305, -25, 0), V(-305, 0, 0)), False)
sketch19.addGeometry(Part.LineSegment(V(-305, 0, 0), V(-356, 0, 0)), False)
sketch19.addConstraint(Sketcher.Constraint("Coincident", 0, 2, 1, 1))
sketch19.addConstraint(Sketcher.Constraint("Coincident", 1, 2, 2, 1))
sketch19.addConstraint(Sketcher.Constraint("Coincident", 2, 2, 3, 1))
sketch19.addConstraint(Sketcher.Constraint("Coincident", 3, 2, 0, 1))
sketch19.addConstraint(Sketcher.Constraint("Vertical", 0))
sketch19.addConstraint(Sketcher.Constraint("Horizontal", 1))
sketch19.addConstraint(Sketcher.Constraint("Vertical", 2))
sketch19.addConstraint(Sketcher.Constraint("Horizontal", 3))
sketch19.addConstraint(Sketcher.Constraint("PointOnObject", 2, 2, -1))
sketch19.addConstraint(Sketcher.Constraint("DistanceX", 1, 1, 1, 2, Q("2 in")))
sketch19.addConstraint(Sketcher.Constraint("DistanceY", 0, 2, 0, 1, Q("1 in")))
sketch19.addConstraint(Sketcher.Constraint("DistanceX", 0, 2, -1, 1, Q("14 in")))
sketch19.setExpression("Constraints[9]", "Params.sketch19_width")
sketch19.setExpression("Constraints[10]", "Params.sketch19_height")
pad19 = body.newObject("PartDesign::Pad", "Pad018")
pad19.Profile = sketch19
pad19.setExpression("Length", "Params.pad19_length")

doc.recompute()
